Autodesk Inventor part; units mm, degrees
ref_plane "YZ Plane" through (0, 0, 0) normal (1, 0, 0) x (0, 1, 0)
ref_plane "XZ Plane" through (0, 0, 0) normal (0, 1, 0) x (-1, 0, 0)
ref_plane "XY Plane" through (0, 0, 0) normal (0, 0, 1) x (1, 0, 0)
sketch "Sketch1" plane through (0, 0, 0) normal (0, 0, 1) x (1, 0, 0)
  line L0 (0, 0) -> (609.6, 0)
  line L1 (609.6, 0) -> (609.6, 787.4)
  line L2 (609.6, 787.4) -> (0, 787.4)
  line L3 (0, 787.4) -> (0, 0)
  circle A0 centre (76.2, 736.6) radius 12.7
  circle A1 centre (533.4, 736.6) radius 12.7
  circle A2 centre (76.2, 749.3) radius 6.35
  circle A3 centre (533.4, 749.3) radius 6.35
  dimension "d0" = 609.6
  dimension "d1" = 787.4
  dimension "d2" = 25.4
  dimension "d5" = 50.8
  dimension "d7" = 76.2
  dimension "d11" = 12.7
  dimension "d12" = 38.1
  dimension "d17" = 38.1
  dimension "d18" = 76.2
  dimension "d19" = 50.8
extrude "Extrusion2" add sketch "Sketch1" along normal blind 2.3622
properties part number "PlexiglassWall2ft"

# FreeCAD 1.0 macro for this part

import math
import FreeCAD as App
import Part
import Sketcher

V = App.Vector
Q = App.Units.Quantity


def add_polygon(sketch, points):
    """Adds a closed chain of lines whose ends are joined by coincident constraints."""
    first, n = sketch.GeometryCount, len(points)
    for a, b in zip(points, points[1:] + points[:1]):
        sketch.addGeometry(Part.LineSegment(App.Vector(*a, 0), App.Vector(*b, 0)), False)
    for i in range(n):
        sketch.addConstraint(Sketcher.Constraint("Coincident", first + i, 2, first + (i + 1) % n, 1))

doc = App.newDocument("Part")
body = doc.addObject("PartDesign::Body", "Body")

sketch1 = body.newObject("Sketcher::SketchObject", "Sketch")
sketch1.AttachmentSupport = (doc.getObject("XY_Plane"), [""])
sketch1.MapMode = "FlatFace"
add_polygon(sketch1, [(0, 787), (0, 0), (610, 0), (610, 787)])
sketch1.addGeometry(Part.ArcOfCircle(Part.Circle(V(76, 737, 0), V(0, 0, 1), 13), math.radians(119), math.radians(421)), False)
sketch1.addGeometry(Part.ArcOfCircle(Part.Circle(V(76, 749, 0), V(0, 0, 1), 6), math.radians(-14), math.radians(194)), False)
sketch1.addGeometry(Part.ArcOfCircle(Part.Circle(V(533, 737, 0), V(0, 0, 1), 13), math.radians(119), math.radians(421)), False)
sketch1.addGeometry(Part.ArcOfCircle(Part.Circle(V(533, 749, 0), V(0, 0, 1), 6), math.radians(-14), math.radians(194)), False)
sketch1.addConstraint(Sketcher.Constraint("Coincident", 4, 1, 5, 2))
sketch1.addConstraint(Sketcher.Constraint("Coincident", 5, 1, 4, 2))
sketch1.addConstraint(Sketcher.Constraint("Coincident", 6, 1, 7, 2))
sketch1.addConstraint(Sketcher.Constraint("Coincident", 7, 1, 6, 2))
sketch1.addConstraint(Sketcher.Constraint("Vertical", 0))
sketch1.addConstraint(Sketcher.Constraint("Horizontal", 1))
sketch1.addConstraint(Sketcher.Constraint("Vertical", 2))
sketch1.addConstraint(Sketcher.Constraint("Horizontal", 3))
sketch1.addConstraint(Sketcher.Constraint("Coincident", 0, 2, -1, 1))
sketch1.addConstraint(Sketcher.Constraint("Equal", 4, 6))
sketch1.addConstraint(Sketcher.Constraint("Equal", 5, 7))
sketch1.addConstraint(Sketcher.Constraint("Horizontal", 4, 3, 6, 3))
sketch1.addConstraint(Sketcher.Constraint("Horizontal", 5, 3, 7, 3))
sketch1.addConstraint(Sketcher.Constraint("Horizontal", 4, 1, 5, 1))
sketch1.addConstraint(Sketcher.Constraint("Horizontal", 5, 1, 6, 1))
sketch1.addConstraint(Sketcher.Constraint("Radius", 4, Q("0.5 in")))
sketch1.addConstraint(Sketcher.Constraint("DistanceX", 1, 1, 1, 2, Q("24 in")))
sketch1.addConstraint(Sketcher.Constraint("DistanceY", 0, 2, 0, 1, Q("31 in")))
sketch1.addConstraint(Sketcher.Constraint("Radius", 5, Q("0.25 in")))
sketch1.addConstraint(Sketcher.Constraint("DistanceX", -1, 1, 4, 3, Q("3 in")))
sketch1.addConstraint(Sketcher.Constraint("DistanceX", 6, 3, 1, 2, Q("3 in")))
sketch1.addConstraint(Sketcher.Constraint("DistanceY", 6, 3, 2, 2, Q("2 in")))
sketch1.addConstraint(Sketcher.Constraint("DistanceY", 4, 3, 5, 3, Q("0.5 in")))
pad1 = body.newObject("PartDesign::Pad", "Pad")
pad1.Profile = sketch1
pad1.Length = Q("0.093 in")

doc.recompute()
